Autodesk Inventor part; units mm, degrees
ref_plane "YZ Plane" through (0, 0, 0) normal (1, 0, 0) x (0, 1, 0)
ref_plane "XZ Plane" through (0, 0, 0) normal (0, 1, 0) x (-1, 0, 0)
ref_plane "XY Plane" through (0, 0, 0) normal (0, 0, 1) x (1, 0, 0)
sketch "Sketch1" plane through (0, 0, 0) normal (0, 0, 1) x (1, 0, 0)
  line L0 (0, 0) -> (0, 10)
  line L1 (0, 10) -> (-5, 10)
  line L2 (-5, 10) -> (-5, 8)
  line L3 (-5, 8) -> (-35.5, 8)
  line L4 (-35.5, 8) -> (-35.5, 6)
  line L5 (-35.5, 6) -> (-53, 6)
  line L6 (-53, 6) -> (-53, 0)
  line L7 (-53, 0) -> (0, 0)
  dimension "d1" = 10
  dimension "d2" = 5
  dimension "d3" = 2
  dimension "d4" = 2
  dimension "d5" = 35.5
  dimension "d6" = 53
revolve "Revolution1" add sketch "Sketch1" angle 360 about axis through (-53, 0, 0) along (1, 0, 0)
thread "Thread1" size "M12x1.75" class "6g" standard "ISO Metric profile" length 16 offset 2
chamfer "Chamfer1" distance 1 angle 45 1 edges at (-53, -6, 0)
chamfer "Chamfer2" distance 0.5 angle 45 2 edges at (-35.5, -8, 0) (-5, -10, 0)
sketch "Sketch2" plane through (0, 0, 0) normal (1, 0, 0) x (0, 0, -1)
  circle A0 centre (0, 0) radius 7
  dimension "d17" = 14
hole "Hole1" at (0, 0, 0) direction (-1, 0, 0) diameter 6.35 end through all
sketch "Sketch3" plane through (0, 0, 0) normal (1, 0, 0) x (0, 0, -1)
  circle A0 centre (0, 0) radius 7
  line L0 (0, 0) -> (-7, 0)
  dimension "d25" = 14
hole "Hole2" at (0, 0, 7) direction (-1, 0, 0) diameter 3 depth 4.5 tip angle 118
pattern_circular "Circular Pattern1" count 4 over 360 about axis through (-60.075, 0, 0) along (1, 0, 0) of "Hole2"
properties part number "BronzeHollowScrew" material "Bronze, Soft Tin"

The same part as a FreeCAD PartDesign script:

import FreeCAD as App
import Part
import Sketcher


def edges_at(feature, points):
    """Names of the edges that pass closest to the given points."""
    edges = feature.Shape.Edges
    near = lambda p: min(range(len(edges)), key=lambda i: edges[i].distToShape(Part.Vertex(*p))[0])
    return sorted({f"Edge{near(p) + 1}" for p in points})

doc = App.newDocument("Part")
params = doc.addObject("Spreadsheet::Sheet", "Params")
for row, (alias, value) in enumerate([
    ("sketch1_width", "53 mm"),
    ("sketch1_width2", "5 mm"),
    ("sketch1_height", "10 mm"),
    ("sketch1_height2", "2 mm"),
    ("revolution_angle", "360 deg"),
    ("chamfer_size", "1 mm"),
    ("chamfer2_size", "0.5 mm"),
    ("sketch2_diameter", "6.35 mm"),
    ("hole_diameter", "6.35 mm"),
    ("sketch3_diameter", "3 mm"),
    ("hole2_diameter", "3 mm"),
    ("hole2_depth", "4.5 mm"),
], start=1):
    params.set(f"A{row}", alias)
    params.set(f"B{row}", "=" + value)
    params.setAlias(f"B{row}", alias)

body = doc.addObject("PartDesign::Body", "Body")

sketch1 = body.newObject("Sketcher::SketchObject", "Sketch")
sketch1.AttachmentSupport = (doc.getObject("XY_Plane"), [""])
sketch1.MapMode = "FlatFace"
sketch1.addGeometry([
    Part.LineSegment(App.Vector(-53, 0, 0), App.Vector(0, 0, 0)),
    Part.LineSegment(App.Vector(0, 0, 0), App.Vector(0, 10, 0)),
    Part.LineSegment(App.Vector(0, 10, 0), App.Vector(-5, 10, 0)),
    Part.LineSegment(App.Vector(-5, 10, 0), App.Vector(-5, 8, 0)),
    Part.LineSegment(App.Vector(-5, 8, 0), App.Vector(-35.5, 8, 0)),
    Part.LineSegment(App.Vector(-35.5, 8, 0), App.Vector(-35.5, 6, 0)),
    Part.LineSegment(App.Vector(-35.5, 6, 0), App.Vector(-53, 6, 0)),
    Part.LineSegment(App.Vector(-53, 6, 0), App.Vector(-53, 0, 0)),
], False)
sketch1.addConstraint([
    Sketcher.Constraint("Coincident", 0, 2, 1, 1),
    Sketcher.Constraint("Coincident", 1, 2, 2, 1),
    Sketcher.Constraint("Coincident", 2, 2, 3, 1),
    Sketcher.Constraint("Coincident", 3, 2, 4, 1),
    Sketcher.Constraint("Coincident", 4, 2, 5, 1),
    Sketcher.Constraint("Coincident", 5, 2, 6, 1),
    Sketcher.Constraint("Coincident", 6, 2, 7, 1),
    Sketcher.Constraint("Coincident", 7, 2, 0, 1),
    Sketcher.Constraint("Horizontal", 0),
    Sketcher.Constraint("Vertical", 1),
    Sketcher.Constraint("Horizontal", 2),
    Sketcher.Constraint("Vertical", 3),
    Sketcher.Constraint("Horizontal", 4),
    Sketcher.Constraint("Vertical", 5),
    Sketcher.Constraint("Horizontal", 6),
    Sketcher.Constraint("Vertical", 7),
    Sketcher.Constraint("Coincident", 0, 2, -1, 1),
    Sketcher.Constraint("Equal", 3, 5),
    Sketcher.Constraint("DistanceX", 0, 1, 0, 2, 53.0),
    Sketcher.Constraint("DistanceX", 2, 2, 2, 1, 5.0),
    Sketcher.Constraint("DistanceY", 1, 1, 1, 2, 10.0),
    Sketcher.Constraint("DistanceY", 3, 2, 3, 1, 2.0),
    Sketcher.Constraint("DistanceX", 4, 2, -1, 1, 35.5),
])
sketch1.setExpression("Constraints[18]", "Params.sketch1_width")
sketch1.setExpression("Constraints[19]", "Params.sketch1_width2")
sketch1.setExpression("Constraints[20]", "Params.sketch1_height")
sketch1.setExpression("Constraints[21]", "Params.sketch1_height2")
revolution = body.newObject("PartDesign::Revolution", "Revolution")
revolution.Profile = sketch1
revolution.ReferenceAxis = (sketch1, ["H_Axis"])
revolution.setExpression("Angle", "Params.revolution_angle")
doc.recompute()

chamfer = body.newObject("PartDesign::Chamfer", "Chamfer")
chamfer.Base = (revolution, edges_at(revolution, [(-53, -6, 0)]))
chamfer.setExpression("Size", "Params.chamfer_size")
doc.recompute()

chamfer2 = body.newObject("PartDesign::Chamfer", "Chamfer001")
chamfer2.Base = (chamfer, edges_at(chamfer, [(-35.5, -8, 0), (-5, -10, 0)]))
chamfer2.setExpression("Size", "Params.chamfer2_size")

sketch2 = body.newObject("Sketcher::SketchObject", "Sketch001")
sketch2.AttachmentSupport = (doc.getObject("YZ_Plane"), [""])
sketch2.MapMode = "FlatFace"
sketch2.addGeometry(Part.Circle(App.Vector(0, 0, 0), App.Vector(0, 0, 1), 3.2), False)
sketch2.addConstraint([
    Sketcher.Constraint("Coincident", 0, 3, -1, 1),
    Sketcher.Constraint("Diameter", 0, 6.35),
])
sketch2.setExpression("Constraints[1]", "Params.sketch2_diameter")
doc.recompute()
hole = body.newObject("PartDesign::Hole", "Hole")
hole.Profile = sketch2
hole.ThreadType = "None"
hole.setExpression("Diameter", "Params.hole_diameter")
hole.DepthType = "ThroughAll"

sketch3 = body.newObject("Sketcher::SketchObject", "Sketch002")
sketch3.AttachmentSupport = (doc.getObject("YZ_Plane"), [""])
sketch3.MapMode = "FlatFace"
sketch3.addGeometry(Part.Circle(App.Vector(0, 7, 0), App.Vector(0, 0, 1), 1.5), False)
sketch3.addConstraint([
    Sketcher.Constraint("PointOnObject", 0, 3, -2),
    Sketcher.Constraint("Diameter", 0, 3.0),
    Sketcher.Constraint("DistanceY", -1, 1, 0, 3, 7.0),
])
sketch3.setExpression("Constraints[1]", "Params.sketch3_diameter")
doc.recompute()
hole2 = body.newObject("PartDesign::Hole", "Hole001")
hole2.Profile = sketch3
hole2.ThreadType = "None"
hole2.setExpression("Diameter", "Params.hole2_diameter")
hole2.DepthType = "Dimension"
hole2.setExpression("Depth", "Params.hole2_depth")
hole2.DrillPoint = "Angled"
hole2.DrillPointAngle = 118
doc.recompute()

polarpattern = body.newObject("PartDesign::PolarPattern", "PolarPattern")
polarpattern.Originals = [hole2]
polarpattern.Axis = (doc.getObject("X_Axis"), [""])
polarpattern.Angle = 360
polarpattern.Occurrences = 4
body.Tip = polarpattern

doc.recompute()
